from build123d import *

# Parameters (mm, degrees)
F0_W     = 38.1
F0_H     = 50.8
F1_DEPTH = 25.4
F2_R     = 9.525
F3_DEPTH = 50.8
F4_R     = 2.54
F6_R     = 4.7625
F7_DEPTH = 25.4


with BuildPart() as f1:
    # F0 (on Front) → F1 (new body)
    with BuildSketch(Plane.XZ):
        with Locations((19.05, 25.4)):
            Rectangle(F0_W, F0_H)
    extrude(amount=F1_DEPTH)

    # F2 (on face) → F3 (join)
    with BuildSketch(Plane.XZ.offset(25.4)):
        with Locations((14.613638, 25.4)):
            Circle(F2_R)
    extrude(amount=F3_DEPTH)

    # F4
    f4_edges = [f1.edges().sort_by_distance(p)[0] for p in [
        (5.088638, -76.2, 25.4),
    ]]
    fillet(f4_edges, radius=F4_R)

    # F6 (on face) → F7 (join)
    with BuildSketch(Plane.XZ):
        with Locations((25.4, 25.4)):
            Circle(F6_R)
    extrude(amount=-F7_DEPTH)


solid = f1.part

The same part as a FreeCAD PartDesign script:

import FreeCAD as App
import Part
import Sketcher
Q = App.Units.Quantity


def edges_at(feature, points):
    """Names of the edges that pass closest to the given points."""
    edges = feature.Shape.Edges
    near = lambda p: min(range(len(edges)), key=lambda i: edges[i].distToShape(Part.Vertex(*p))[0])
    return sorted({f"Edge{near(p) + 1}" for p in points})

doc = App.newDocument("Part")
body = doc.addObject("PartDesign::Body", "Body")

# Sketch on XZ plane
sketch1 = doc.addObject("Sketcher::SketchObject", "Sketch")
body.addObject(sketch1)
sketch1.AttachmentSupport = (doc.XZ_Plane, [""])
sketch1.MapMode = "FlatFace"
sketch1.addGeometry(Part.LineSegment(App.Vector(0, 51, 0), App.Vector(0, 0, 0)), False)
sketch1.addGeometry(Part.LineSegment(App.Vector(0, 0, 0), App.Vector(38, 0, 0)), False)
sketch1.addGeometry(Part.LineSegment(App.Vector(38, 0, 0), App.Vector(38, 51, 0)), False)
sketch1.addGeometry(Part.LineSegment(App.Vector(38, 51, 0), App.Vector(0, 51, 0)), False)
sketch1.addConstraint(Sketcher.Constraint("Coincident", 0, 2, 1, 1))
sketch1.addConstraint(Sketcher.Constraint("Coincident", 1, 2, 2, 1))
sketch1.addConstraint(Sketcher.Constraint("Coincident", 2, 2, 3, 1))
sketch1.addConstraint(Sketcher.Constraint("Coincident", 3, 2, 0, 1))
sketch1.addConstraint(Sketcher.Constraint("Vertical", 0))
sketch1.addConstraint(Sketcher.Constraint("Horizontal", 1))
sketch1.addConstraint(Sketcher.Constraint("Vertical", 2))
sketch1.addConstraint(Sketcher.Constraint("Horizontal", 3))
sketch1.addConstraint(Sketcher.Constraint("Coincident", 0, 2, -1, 1))
sketch1.addConstraint(Sketcher.Constraint("DistanceY", 0, 2, 0, 1, Q("2 in")))
sketch1.addConstraint(Sketcher.Constraint("DistanceX", 1, 1, 1, 2, Q("1.5 in")))
pad1 = doc.addObject("PartDesign::Pad", "Pad")
body.addObject(pad1)
pad1.Profile = sketch1
pad1.Length = Q("1 in")

# Sketch on XZ plane
sketch2 = doc.addObject("Sketcher::SketchObject", "Sketch001")
body.addObject(sketch2)
sketch2.AttachmentSupport = (doc.XZ_Plane, [""])
sketch2.MapMode = "FlatFace"
sketch2.AttachmentOffset = App.Placement(App.Vector(0, 0, 1 * 25.4), App.Rotation())
sketch2.addGeometry(Part.Circle(App.Vector(15, 25, 0), App.Vector(0, 0, 1), 10), False)
sketch2.addConstraint(Sketcher.Constraint("Diameter", 0, Q("0.75 in")))
sketch2.addConstraint(Sketcher.Constraint("DistanceY", -1, 1, 0, 3, Q("1 in")))
sketch2.addConstraint(Sketcher.Constraint("DistanceX", -1, 1, 0, 3, Q("14.613638 mm")))
pad2 = doc.addObject("PartDesign::Pad", "Pad001")
body.addObject(pad2)
pad2.Profile = sketch2
pad2.Length = Q("2 in")
doc.recompute()

fillet = doc.addObject("PartDesign::Fillet", "Fillet")
body.addObject(fillet)
fillet.Base = (pad2, edges_at(pad2, [(5.089, -76.2, 25.4)]))
fillet.Radius = Q("0.1 in")

# Sketch on XZ plane
sketch3 = doc.addObject("Sketcher::SketchObject", "Sketch002")
body.addObject(sketch3)
sketch3.AttachmentSupport = (doc.XZ_Plane, [""])
sketch3.MapMode = "FlatFace"
sketch3.addGeometry(Part.Circle(App.Vector(25.4, 25.4, 0), App.Vector(0, 0, 1), 4.8), False)
sketch3.addConstraint(Sketcher.Constraint("Diameter", 0, Q("0.375 in")))
sketch3.addConstraint(Sketcher.Constraint("DistanceX", -1, 1, 0, 3, Q("1 in")))
sketch3.addConstraint(Sketcher.Constraint("DistanceY", -1, 1, 0, 3, Q("1 in")))
pad3 = doc.addObject("PartDesign::Pad", "Pad002")
body.addObject(pad3)
pad3.Profile = sketch3
pad3.Length = Q("1 in")
pad3.Reversed = True

doc.recompute()
